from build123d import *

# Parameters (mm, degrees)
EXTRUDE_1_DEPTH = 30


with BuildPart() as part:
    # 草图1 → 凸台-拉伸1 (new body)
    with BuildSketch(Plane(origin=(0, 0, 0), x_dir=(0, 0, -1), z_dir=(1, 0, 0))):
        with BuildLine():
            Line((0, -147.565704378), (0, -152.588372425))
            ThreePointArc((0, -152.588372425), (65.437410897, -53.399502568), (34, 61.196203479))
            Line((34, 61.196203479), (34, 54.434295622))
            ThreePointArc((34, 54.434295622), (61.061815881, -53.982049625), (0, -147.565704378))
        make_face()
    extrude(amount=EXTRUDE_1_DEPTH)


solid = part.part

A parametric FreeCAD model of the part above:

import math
import FreeCAD as App
import Part
import Sketcher
from FreeCAD import Vector

doc = App.newDocument("Part")
body = doc.addObject("PartDesign::Body", "Body")

sketch1 = body.newObject("Sketcher::SketchObject", "Sketch")
sketch1.AttachmentSupport = (doc.getObject("YZ_Plane"), [""])
sketch1.MapMode = "FlatFace"
sketch1.addGeometry([
    Part.LineSegment(Vector(-147.565704, 0, 0), Vector(-152.588372, 0, 0)),
    Part.ArcOfCircle(Part.Circle(Vector(-30.789887, 76.726918, 0), Vector(0, 0, 1), 143.951002), math.radians(-147.791136), math.radians(-50.281983)),
    Part.LineSegment(Vector(61.196203, -34, 0), Vector(54.434296, -34, 0)),
    Part.ArcOfCircle(Part.Circle(Vector(-30.789887, 76.726918, 0), Vector(0, 0, 1), 139.726918), math.radians(-146.693302), math.radians(-52.415277)),
], False)
sketch1.addConstraint([
    Sketcher.Constraint("Coincident", 0, 2, 1, 1),
    Sketcher.Constraint("Coincident", 1, 2, 2, 1),
    Sketcher.Constraint("Coincident", 2, 2, 3, 2),
    Sketcher.Constraint("Coincident", 3, 1, 0, 1),
    Sketcher.Constraint("Horizontal", 0),
    Sketcher.Constraint("Horizontal", 2),
    Sketcher.Constraint("Coincident", 3, 3, 1, 3),
    Sketcher.Constraint("PointOnObject", 0, 2, -1),
    Sketcher.Constraint("DistanceY", 1, 2, -1, 1, 34.0),
    Sketcher.Constraint("DistanceX", 3, 1, 2, 2, 202.0),
    Sketcher.Constraint("Radius", 1, 143.951002),
    Sketcher.Constraint("Radius", 3, 139.726918),
    Sketcher.Constraint("DistanceX", 1, 3, -1, 1, 30.789887),
])
pad1 = body.newObject("PartDesign::Pad", "Pad")
pad1.Profile = sketch1
pad1.Length = 30

doc.recompute()
